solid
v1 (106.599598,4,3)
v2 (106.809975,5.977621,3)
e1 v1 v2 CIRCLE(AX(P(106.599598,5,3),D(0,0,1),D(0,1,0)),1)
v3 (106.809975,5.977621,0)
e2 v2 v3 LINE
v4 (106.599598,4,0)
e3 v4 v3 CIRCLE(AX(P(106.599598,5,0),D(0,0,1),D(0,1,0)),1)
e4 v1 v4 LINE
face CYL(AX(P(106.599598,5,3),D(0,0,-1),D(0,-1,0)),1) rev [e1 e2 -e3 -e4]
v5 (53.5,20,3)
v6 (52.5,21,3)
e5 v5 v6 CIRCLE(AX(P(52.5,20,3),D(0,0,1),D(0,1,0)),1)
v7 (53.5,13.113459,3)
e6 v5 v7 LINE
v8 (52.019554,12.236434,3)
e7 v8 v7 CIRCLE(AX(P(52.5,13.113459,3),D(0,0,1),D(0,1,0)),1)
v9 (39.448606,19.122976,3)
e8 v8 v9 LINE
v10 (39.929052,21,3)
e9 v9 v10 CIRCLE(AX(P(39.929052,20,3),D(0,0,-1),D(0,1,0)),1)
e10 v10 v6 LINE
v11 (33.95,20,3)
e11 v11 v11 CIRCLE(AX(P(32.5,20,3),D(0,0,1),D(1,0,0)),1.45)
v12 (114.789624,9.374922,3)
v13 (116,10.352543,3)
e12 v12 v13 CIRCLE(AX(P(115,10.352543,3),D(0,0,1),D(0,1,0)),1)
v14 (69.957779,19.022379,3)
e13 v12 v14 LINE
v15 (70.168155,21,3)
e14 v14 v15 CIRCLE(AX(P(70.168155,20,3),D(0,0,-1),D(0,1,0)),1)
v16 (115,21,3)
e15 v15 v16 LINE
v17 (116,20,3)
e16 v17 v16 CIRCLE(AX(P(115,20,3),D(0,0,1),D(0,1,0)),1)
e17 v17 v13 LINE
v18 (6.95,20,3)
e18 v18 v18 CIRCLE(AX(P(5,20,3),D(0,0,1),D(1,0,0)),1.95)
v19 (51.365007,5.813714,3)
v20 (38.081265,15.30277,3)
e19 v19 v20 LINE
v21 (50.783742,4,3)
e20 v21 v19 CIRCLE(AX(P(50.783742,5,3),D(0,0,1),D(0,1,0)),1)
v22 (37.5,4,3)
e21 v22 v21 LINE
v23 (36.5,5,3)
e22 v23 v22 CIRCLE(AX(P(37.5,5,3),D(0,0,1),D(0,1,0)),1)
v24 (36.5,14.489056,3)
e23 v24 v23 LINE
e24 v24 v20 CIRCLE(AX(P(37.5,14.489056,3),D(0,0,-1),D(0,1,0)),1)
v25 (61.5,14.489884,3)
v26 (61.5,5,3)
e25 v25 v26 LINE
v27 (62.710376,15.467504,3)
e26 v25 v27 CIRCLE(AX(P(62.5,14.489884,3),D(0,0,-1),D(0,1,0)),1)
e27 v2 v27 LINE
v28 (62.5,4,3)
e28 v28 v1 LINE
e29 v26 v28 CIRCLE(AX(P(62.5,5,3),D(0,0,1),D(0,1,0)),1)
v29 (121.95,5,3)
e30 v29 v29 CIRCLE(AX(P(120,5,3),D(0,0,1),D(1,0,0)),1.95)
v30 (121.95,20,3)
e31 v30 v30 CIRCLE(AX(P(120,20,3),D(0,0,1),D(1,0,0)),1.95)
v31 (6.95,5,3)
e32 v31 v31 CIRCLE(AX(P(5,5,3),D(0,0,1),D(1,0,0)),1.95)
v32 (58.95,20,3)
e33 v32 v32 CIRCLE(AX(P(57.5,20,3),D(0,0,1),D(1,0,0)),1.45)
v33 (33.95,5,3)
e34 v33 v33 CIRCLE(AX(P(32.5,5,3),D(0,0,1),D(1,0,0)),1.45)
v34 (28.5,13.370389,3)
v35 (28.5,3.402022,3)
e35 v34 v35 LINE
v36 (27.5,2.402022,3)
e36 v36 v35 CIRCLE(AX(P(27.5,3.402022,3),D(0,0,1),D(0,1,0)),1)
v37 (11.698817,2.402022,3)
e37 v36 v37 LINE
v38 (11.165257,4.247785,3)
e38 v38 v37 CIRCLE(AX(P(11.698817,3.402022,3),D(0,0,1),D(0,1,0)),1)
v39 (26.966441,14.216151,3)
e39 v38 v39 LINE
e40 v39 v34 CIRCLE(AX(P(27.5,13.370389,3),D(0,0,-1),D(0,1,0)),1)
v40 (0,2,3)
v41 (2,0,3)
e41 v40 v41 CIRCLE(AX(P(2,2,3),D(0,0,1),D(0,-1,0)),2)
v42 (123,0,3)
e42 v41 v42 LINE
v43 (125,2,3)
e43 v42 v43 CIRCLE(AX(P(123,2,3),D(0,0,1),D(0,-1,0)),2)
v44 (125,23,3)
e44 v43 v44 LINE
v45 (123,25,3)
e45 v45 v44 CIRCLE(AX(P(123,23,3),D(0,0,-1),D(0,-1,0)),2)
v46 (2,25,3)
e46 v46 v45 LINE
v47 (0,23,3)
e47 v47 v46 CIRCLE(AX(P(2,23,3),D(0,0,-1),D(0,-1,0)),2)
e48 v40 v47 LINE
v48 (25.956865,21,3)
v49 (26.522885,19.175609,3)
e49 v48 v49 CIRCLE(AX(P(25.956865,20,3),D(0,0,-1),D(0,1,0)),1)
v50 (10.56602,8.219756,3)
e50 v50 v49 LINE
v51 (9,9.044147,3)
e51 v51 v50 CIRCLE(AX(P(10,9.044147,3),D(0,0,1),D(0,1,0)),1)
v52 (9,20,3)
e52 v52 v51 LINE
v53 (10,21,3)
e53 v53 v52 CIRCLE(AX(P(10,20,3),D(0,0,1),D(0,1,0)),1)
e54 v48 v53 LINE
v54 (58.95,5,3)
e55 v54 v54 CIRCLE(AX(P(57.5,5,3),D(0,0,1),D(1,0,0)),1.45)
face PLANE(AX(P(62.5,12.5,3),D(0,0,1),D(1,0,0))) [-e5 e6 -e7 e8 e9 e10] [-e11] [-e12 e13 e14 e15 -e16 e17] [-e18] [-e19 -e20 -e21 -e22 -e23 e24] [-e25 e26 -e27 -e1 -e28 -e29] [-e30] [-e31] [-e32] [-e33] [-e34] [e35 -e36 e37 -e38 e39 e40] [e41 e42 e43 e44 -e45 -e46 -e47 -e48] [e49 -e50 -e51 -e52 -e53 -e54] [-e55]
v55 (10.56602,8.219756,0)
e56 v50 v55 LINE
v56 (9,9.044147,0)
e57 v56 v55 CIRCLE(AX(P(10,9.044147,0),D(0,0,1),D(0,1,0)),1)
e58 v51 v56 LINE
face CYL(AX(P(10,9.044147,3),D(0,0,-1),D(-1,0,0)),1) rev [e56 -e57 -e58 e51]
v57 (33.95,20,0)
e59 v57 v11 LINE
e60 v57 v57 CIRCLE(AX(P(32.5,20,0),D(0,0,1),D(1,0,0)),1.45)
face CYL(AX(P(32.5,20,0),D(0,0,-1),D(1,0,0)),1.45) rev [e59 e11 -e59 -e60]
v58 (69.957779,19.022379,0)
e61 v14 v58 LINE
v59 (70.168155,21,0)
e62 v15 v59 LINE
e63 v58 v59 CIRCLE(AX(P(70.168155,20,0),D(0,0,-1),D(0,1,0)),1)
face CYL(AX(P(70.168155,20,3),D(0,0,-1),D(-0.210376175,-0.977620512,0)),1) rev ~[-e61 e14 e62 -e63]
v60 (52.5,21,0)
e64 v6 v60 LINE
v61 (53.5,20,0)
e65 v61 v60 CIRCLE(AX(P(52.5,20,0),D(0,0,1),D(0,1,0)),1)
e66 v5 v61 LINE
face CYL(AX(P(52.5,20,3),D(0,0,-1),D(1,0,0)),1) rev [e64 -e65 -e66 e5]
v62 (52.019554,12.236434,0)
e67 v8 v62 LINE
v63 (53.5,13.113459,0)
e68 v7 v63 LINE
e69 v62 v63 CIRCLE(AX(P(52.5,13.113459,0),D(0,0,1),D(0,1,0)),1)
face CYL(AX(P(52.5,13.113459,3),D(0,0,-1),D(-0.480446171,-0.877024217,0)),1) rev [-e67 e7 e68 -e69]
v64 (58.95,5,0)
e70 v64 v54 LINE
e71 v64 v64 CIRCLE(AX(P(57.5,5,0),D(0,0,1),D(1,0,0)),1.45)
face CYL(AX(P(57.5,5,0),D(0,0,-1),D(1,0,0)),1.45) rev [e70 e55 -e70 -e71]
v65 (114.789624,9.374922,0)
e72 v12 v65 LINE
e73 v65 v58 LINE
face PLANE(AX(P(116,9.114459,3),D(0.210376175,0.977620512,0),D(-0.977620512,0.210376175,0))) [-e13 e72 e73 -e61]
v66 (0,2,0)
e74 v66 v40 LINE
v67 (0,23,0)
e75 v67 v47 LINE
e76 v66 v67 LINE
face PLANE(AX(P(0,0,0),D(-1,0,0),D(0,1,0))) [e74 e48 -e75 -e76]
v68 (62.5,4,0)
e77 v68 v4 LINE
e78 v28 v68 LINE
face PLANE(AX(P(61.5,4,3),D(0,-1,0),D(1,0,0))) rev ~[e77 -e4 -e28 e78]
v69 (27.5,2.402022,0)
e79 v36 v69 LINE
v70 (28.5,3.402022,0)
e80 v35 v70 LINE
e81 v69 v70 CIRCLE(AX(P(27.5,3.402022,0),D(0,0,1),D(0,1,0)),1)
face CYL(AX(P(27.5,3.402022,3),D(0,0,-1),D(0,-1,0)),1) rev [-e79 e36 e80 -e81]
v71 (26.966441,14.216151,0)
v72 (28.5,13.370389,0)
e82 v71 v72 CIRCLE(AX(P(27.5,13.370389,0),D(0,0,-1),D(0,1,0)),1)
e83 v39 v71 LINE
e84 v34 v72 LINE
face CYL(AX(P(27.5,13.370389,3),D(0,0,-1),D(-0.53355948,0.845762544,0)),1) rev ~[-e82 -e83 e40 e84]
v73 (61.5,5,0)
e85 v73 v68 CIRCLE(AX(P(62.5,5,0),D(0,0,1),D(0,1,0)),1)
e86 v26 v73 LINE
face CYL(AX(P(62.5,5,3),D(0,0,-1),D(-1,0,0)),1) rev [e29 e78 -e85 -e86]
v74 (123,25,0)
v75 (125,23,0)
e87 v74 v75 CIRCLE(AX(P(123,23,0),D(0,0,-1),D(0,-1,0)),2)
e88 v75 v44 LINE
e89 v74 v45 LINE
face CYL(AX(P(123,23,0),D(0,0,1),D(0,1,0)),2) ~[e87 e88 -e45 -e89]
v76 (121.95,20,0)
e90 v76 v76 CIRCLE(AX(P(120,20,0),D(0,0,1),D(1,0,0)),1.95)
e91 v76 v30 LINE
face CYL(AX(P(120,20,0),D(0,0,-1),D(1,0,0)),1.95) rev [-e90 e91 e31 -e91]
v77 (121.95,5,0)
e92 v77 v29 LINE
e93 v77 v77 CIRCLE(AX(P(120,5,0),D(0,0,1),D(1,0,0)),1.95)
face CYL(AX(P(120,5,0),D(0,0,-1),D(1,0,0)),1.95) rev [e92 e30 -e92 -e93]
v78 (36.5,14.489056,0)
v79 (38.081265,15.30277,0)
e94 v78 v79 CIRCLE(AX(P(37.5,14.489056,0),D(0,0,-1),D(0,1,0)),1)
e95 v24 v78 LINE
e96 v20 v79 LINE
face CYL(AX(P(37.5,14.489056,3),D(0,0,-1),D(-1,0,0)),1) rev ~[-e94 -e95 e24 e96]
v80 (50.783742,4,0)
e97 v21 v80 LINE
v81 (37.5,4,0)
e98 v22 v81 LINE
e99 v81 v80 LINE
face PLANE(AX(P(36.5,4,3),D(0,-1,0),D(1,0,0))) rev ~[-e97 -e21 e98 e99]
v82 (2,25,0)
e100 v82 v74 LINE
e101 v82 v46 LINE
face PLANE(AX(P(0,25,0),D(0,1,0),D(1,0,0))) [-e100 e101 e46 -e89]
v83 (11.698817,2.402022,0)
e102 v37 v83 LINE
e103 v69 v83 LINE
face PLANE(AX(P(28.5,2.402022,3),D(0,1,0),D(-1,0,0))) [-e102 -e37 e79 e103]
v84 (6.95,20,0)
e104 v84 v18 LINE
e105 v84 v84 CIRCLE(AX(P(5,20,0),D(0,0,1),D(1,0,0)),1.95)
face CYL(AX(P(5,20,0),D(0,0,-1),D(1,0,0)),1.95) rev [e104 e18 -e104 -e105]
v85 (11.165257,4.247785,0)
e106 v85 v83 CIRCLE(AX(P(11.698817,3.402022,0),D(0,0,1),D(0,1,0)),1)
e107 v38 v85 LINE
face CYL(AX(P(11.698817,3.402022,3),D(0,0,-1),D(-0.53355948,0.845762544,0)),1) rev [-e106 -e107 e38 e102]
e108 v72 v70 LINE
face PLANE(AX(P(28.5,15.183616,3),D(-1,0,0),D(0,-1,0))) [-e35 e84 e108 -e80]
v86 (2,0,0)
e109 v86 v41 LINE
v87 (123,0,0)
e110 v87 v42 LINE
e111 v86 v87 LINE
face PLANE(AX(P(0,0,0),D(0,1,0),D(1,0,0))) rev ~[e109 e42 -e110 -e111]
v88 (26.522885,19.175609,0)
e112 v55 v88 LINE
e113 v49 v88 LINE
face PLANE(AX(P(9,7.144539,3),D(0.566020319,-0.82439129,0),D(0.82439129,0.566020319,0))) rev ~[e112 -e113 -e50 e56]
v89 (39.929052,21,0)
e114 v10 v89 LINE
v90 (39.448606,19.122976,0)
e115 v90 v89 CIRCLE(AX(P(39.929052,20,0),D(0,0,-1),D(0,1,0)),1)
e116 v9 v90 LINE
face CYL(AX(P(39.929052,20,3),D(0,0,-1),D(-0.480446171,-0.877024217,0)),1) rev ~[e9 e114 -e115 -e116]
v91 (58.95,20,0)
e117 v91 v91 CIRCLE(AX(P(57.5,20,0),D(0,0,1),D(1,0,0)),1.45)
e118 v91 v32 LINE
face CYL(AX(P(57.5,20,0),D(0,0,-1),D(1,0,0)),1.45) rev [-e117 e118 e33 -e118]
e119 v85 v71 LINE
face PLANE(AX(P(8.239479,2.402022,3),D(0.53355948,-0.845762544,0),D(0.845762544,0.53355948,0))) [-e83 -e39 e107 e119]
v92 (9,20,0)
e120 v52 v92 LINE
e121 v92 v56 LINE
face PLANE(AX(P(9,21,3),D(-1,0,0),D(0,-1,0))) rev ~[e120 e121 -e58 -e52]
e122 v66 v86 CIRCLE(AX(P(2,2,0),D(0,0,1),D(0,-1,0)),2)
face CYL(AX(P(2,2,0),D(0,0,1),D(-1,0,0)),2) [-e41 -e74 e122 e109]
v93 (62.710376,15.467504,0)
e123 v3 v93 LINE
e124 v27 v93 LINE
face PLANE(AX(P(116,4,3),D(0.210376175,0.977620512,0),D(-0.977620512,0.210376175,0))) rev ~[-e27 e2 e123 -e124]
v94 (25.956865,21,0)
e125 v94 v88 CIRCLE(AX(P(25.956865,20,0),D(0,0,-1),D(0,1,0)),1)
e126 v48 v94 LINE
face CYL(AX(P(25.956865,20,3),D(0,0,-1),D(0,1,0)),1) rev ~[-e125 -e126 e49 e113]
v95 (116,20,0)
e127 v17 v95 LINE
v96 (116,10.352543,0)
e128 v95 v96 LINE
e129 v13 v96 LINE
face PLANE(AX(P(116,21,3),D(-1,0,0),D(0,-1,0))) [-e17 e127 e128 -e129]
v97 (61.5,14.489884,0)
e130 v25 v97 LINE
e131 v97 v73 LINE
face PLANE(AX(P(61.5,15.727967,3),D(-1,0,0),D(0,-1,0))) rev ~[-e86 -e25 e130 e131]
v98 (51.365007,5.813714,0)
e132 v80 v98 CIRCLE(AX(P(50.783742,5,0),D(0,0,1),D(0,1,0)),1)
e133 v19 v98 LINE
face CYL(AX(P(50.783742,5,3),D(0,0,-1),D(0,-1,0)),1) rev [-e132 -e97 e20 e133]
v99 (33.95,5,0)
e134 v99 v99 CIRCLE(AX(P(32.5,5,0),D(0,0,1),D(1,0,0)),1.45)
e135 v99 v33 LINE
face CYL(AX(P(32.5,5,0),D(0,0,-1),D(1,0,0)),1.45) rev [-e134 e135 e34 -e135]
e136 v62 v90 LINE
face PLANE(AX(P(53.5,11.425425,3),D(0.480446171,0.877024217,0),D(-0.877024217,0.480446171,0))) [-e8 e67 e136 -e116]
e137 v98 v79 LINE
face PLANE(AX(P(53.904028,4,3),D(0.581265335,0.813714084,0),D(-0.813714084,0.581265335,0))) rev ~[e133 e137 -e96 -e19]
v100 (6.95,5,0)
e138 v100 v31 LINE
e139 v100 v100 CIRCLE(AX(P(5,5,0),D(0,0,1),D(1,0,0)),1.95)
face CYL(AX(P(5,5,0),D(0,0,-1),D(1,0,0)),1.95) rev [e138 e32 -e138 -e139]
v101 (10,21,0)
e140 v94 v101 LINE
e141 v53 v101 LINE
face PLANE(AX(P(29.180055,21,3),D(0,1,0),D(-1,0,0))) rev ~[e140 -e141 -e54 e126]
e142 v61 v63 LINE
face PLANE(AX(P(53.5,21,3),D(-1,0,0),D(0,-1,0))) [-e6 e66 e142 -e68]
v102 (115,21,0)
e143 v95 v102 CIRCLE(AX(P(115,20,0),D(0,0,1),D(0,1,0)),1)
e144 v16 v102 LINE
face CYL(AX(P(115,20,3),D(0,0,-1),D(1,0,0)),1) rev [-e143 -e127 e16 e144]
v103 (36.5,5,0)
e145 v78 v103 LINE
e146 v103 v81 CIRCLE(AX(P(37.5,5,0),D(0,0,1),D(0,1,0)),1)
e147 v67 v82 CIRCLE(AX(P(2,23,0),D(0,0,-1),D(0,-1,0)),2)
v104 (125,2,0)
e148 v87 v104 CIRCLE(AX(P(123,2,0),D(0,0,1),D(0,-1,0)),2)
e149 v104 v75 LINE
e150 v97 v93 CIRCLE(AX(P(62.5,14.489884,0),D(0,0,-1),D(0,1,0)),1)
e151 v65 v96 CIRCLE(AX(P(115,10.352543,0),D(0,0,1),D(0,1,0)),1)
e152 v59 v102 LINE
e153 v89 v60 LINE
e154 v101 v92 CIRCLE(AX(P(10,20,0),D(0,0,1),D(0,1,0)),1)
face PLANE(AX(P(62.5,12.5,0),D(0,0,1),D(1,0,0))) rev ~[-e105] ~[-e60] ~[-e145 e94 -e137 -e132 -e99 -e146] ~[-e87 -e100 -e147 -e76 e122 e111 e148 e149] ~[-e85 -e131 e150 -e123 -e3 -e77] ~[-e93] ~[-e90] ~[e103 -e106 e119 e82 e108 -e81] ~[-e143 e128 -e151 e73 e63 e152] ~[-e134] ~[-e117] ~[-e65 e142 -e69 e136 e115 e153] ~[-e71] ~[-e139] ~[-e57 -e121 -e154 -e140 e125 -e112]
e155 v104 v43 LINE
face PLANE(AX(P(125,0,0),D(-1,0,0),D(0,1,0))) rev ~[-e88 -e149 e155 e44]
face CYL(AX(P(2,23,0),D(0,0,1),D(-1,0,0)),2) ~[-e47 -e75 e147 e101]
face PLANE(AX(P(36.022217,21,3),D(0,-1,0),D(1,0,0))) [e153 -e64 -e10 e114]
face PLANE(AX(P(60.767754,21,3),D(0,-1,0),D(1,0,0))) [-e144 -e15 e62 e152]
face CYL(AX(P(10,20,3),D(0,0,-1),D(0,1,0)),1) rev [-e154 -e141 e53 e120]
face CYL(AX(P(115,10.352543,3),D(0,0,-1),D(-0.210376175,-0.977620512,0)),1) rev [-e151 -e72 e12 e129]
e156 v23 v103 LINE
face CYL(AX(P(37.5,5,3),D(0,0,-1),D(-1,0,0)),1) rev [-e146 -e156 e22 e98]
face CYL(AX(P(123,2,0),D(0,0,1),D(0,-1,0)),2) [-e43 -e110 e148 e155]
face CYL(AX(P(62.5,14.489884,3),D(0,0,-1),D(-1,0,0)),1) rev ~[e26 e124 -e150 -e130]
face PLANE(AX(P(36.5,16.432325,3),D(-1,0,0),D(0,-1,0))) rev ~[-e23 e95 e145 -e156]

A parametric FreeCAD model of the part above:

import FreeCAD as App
import Part
import Sketcher
Q = App.Units.Quantity


def edges_at(feature, points):
    """Names of the edges that pass closest to the given points."""
    edges = feature.Shape.Edges
    near = lambda p: min(range(len(edges)), key=lambda i: edges[i].distToShape(Part.Vertex(*p))[0])
    return sorted({f"Edge{near(p) + 1}" for p in points})


def add_polygon(sketch, points):
    """Adds a closed chain of lines whose ends are joined by coincident constraints."""
    first, n = sketch.GeometryCount, len(points)
    for a, b in zip(points, points[1:] + points[:1]):
        sketch.addGeometry(Part.LineSegment(App.Vector(*a, 0), App.Vector(*b, 0)), False)
    for i in range(n):
        sketch.addConstraint(Sketcher.Constraint("Coincident", first + i, 2, first + (i + 1) % n, 1))

doc = App.newDocument("Part")
body = doc.addObject("PartDesign::Body", "Body")

# Sketch on XY plane
sketch1 = body.newObject("Sketcher::SketchObject", "Sketch")
sketch1.AttachmentSupport = (doc.getObject("XY_Plane"), [""])
sketch1.MapMode = "FlatFace"
add_polygon(sketch1, [(0, 25), (0, 0), (125, 0), (125, 25)])  # lines 0-3
sketch1.addGeometry(Part.Circle(App.Vector(5, 5, 0), App.Vector(0, 0, 1), 1.95), False)  # 4
sketch1.addGeometry(Part.Circle(App.Vector(32.5, 5, 0), App.Vector(0, 0, 1), 1.45), False)  # 5
sketch1.addGeometry(Part.Circle(App.Vector(57.5, 5, 0), App.Vector(0, 0, 1), 1.45), False)  # 6
sketch1.addGeometry(Part.Circle(App.Vector(120, 5, 0), App.Vector(0, 0, 1), 1.95), False)  # 7
sketch1.addGeometry(Part.Circle(App.Vector(5, 20, 0), App.Vector(0, 0, 1), 1.95), False)  # 8
sketch1.addGeometry(Part.Circle(App.Vector(32.5, 20, 0), App.Vector(0, 0, 1), 1.45), False)  # 9
sketch1.addGeometry(Part.Circle(App.Vector(57.5, 20, 0), App.Vector(0, 0, 1), 1.45), False)  # 10
sketch1.addGeometry(Part.Circle(App.Vector(120, 20, 0), App.Vector(0, 0, 1), 1.95), False)  # 11
sketch1.addConstraint([
    Sketcher.Constraint("Vertical", 0),
    Sketcher.Constraint("Horizontal", 1),
    Sketcher.Constraint("Vertical", 2),
    Sketcher.Constraint("Horizontal", 3),
    Sketcher.Constraint("Coincident", 0, 2, -1, 1),
    Sketcher.Constraint("Equal", 5, 6),
    Sketcher.Constraint("Equal", 4, 7),
    Sketcher.Constraint("Equal", 7, 8),
    Sketcher.Constraint("Equal", 6, 9),
    Sketcher.Constraint("Equal", 9, 10),
    Sketcher.Constraint("Equal", 8, 11),
    Sketcher.Constraint("Horizontal", 4, 3, 5, 3),
    Sketcher.Constraint("Horizontal", 5, 3, 6, 3),
    Sketcher.Constraint("Horizontal", 6, 3, 7, 3),
    Sketcher.Constraint("Horizontal", 8, 3, 9, 3),
    Sketcher.Constraint("Horizontal", 9, 3, 10, 3),
    Sketcher.Constraint("Horizontal", 10, 3, 11, 3),
    Sketcher.Constraint("Vertical", 4, 3, 8, 3),
    Sketcher.Constraint("Vertical", 5, 3, 9, 3),
    Sketcher.Constraint("Vertical", 6, 3, 10, 3),
    Sketcher.Constraint("Vertical", 7, 3, 11, 3),
    Sketcher.Constraint("Diameter", 4, Q("3.9 mm")),
    Sketcher.Constraint("Diameter", 5, Q("2.9 mm")),
    Sketcher.Constraint("DistanceX", 1, 1, 1, 2, Q("125 mm")),
    Sketcher.Constraint("DistanceY", 0, 2, 0, 1, Q("25 mm")),
    Sketcher.Constraint("DistanceX", -1, 1, 4, 3, Q("5 mm")),
    Sketcher.Constraint("DistanceY", -1, 1, 4, 3, Q("5 mm")),
    Sketcher.Constraint("DistanceX", -1, 1, 7, 3, Q("120 mm")),
    Sketcher.Constraint("DistanceY", -1, 1, 8, 3, Q("20 mm")),
    Sketcher.Constraint("DistanceX", 5, 3, 6, 3, Q("25 mm")),
    Sketcher.Constraint("DistanceX", -1, 1, 5, 3, Q("32.5 mm")),
])
pad1 = body.newObject("PartDesign::Pad", "Pad")
pad1.Profile = sketch1
pad1.Length = 3

# Sketch on XY plane
sketch2 = body.newObject("Sketcher::SketchObject", "Sketch001")
sketch2.AttachmentSupport = (doc.getObject("XY_Plane"), [""])
sketch2.MapMode = "FlatFace"
sketch2.AttachmentOffset = App.Placement(App.Vector(0, 0, 3), App.Rotation())
add_polygon(sketch2, [(116, 21), (60.767754, 21), (116, 9.114459)])  # lines 0-2
add_polygon(sketch2, [(61.5, 15.727967), (61.5, 4), (116, 4)])  # lines 3-5
add_polygon(sketch2, [(53.5, 21), (36.022217, 21), (53.5, 11.425425)])  # lines 6-8
add_polygon(sketch2, [(36.5, 16.432325), (36.5, 4), (53.904028, 4)])  # lines 9-11
add_polygon(sketch2, [(29.180055, 21), (9, 21), (9, 7.144539)])  # lines 12-14
add_polygon(sketch2, [(28.5, 2.402022), (28.5, 15.183616), (8.239479, 2.402022)])  # lines 15-17
sketch2.addConstraint([
    Sketcher.Constraint("Horizontal", 0),
    Sketcher.Constraint("Vertical", 2),
    Sketcher.Constraint("Vertical", 3),
    Sketcher.Constraint("Horizontal", 4),
    Sketcher.Constraint("Horizontal", 6),
    Sketcher.Constraint("Vertical", 8),
    Sketcher.Constraint("Vertical", 9),
    Sketcher.Constraint("Horizontal", 10),
    Sketcher.Constraint("Horizontal", 12),
    Sketcher.Constraint("Vertical", 13),
    Sketcher.Constraint("Vertical", 15),
    Sketcher.Constraint("Horizontal", 17),
    Sketcher.Constraint("Parallel", 1, 5),
    Sketcher.Constraint("Horizontal", 2, 2, 6, 2),
    Sketcher.Constraint("Horizontal", 4, 2, 9, 2),
    Sketcher.Constraint("Horizontal", 8, 2, 12, 2),
    Sketcher.Constraint("Vertical", 2, 2, 4, 2),
    Sketcher.Constraint("DistanceX", 4, 1, 4, 2, Q("54.5 mm")),
    Sketcher.Constraint("DistanceY", -1, 1, 0, 2, Q("21 mm")),
    Sketcher.Constraint("DistanceX", -1, 1, 1, 2, Q("116 mm")),
    Sketcher.Constraint("DistanceY", -1, 1, 3, 2, Q("4 mm")),
    Sketcher.Constraint("DistanceX", -1, 1, 12, 2, Q("9 mm")),
    Sketcher.Constraint("DistanceX", 7, 2, 5, 2, Q("8 mm")),
    Sketcher.Constraint("DistanceX", 9, 2, 7, 2, Q("17 mm")),
    Sketcher.Constraint("DistanceX", 15, 2, 11, 2, Q("8 mm")),
    Sketcher.Constraint("DistanceX", 10, 1, 10, 2, Q("17.404028 mm")),
    Sketcher.Constraint("DistanceX", 17, 1, 17, 2, Q("20.260521 mm")),
    Sketcher.Constraint("DistanceY", 2, 1, 2, 2, Q("11.885541 mm")),
    Sketcher.Constraint("DistanceY", 13, 2, 13, 1, Q("13.855461 mm")),
    Sketcher.Constraint("DistanceY", 7, 2, 11, 2, Q("5.0069 mm")),
    Sketcher.Constraint("Distance", 1, Q("56.496612 mm")),
    Sketcher.Constraint("Distance", 16, Q("23.95533 mm")),
    Sketcher.Constraint("DistanceX", 6, 2, 6, 1, Q("17.477783 mm")),
    Sketcher.Constraint("DistanceX", 12, 2, 12, 1, Q("20.180055 mm")),
    Sketcher.Constraint("DistanceY", 8, 1, 8, 2, Q("9.574575 mm")),
    Sketcher.Constraint("DistanceY", 15, 2, 11, 2, Q("1.248709 mm")),
])
pocket1 = body.newObject("PartDesign::Pocket", "Pocket")
pocket1.Profile = sketch2
pocket1.Length = 10
doc.recompute()

fillet = body.newObject("PartDesign::Fillet", "Fillet")
fillet.Base = (pocket1, edges_at(pocket1, [
    (0, 25, 1.5),
    (125, 25, 1.5),
    (125, 0, 1.5),
    (0, 0, 1.5),
]))
fillet.Radius = 2
doc.recompute()

fillet2 = body.newObject("PartDesign::Fillet", "Fillet001")
fillet2.Base = (fillet, edges_at(fillet, [
    (116, 9.114, 1.5),
    (60.768, 21, 1.5),
    (116, 21, 1.5),
    (29.18, 21, 1.5),
    (9, 7.145, 1.5),
    (9, 21, 1.5),
    (36.5, 16.432, 1.5),
    (53.904, 4, 1.5),
    (36.5, 4, 1.5),
    (53.5, 11.425, 1.5),
    (36.022, 21, 1.5),
    (53.5, 21, 1.5),
    (61.5, 15.728, 1.5),
    (116, 4, 1.5),
    (61.5, 4, 1.5),
    (8.239, 2.402, 1.5),
    (28.5, 15.184, 1.5),
    (28.5, 2.402, 1.5),
]))
fillet2.Radius = 1

doc.recompute()
